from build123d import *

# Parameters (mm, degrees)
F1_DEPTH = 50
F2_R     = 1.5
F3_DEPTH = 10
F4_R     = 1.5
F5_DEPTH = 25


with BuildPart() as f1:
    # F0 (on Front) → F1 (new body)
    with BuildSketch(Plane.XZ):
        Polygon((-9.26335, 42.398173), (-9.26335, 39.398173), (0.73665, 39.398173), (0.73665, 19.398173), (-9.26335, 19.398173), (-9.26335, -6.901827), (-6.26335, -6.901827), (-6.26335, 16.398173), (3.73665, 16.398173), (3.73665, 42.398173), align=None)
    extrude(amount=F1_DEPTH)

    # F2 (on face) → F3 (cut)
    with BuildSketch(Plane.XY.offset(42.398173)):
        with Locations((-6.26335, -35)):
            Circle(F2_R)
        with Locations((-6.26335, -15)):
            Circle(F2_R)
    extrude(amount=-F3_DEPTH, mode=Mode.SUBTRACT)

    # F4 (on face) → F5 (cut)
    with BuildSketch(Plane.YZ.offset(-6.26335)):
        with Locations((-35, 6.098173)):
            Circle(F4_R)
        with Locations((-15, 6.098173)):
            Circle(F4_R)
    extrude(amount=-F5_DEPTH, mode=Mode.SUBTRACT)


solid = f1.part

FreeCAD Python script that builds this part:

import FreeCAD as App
import Part
import Sketcher
from FreeCAD import Vector

doc = App.newDocument("Part")
params = doc.addObject("Spreadsheet::Sheet", "Params")
for row, (alias, value) in enumerate([
    ("sketch1_width", "10 mm"),
    ("sketch1_width2", "3 mm"),
    ("sketch1_height", "20 mm"),
    ("sketch1_height2", "26 mm"),
    ("sketch1_height3", "26.3 mm"),
    ("pad1_length", "50 mm"),
    ("sketch2_diameter", "3 mm"),
    ("pocket1_length", "10 mm"),
    ("sketch3_diameter", "3 mm"),
    ("pocket2_length", "25 mm"),
], start=1):
    params.set(f"A{row}", alias)
    params.set(f"B{row}", "=" + value)
    params.setAlias(f"B{row}", alias)

body = doc.addObject("PartDesign::Body", "Body")

# Sketch on XZ plane
sketch1 = body.newObject("Sketcher::SketchObject", "Sketch")
sketch1.AttachmentSupport = (doc.getObject("XZ_Plane"), [""])
sketch1.MapMode = "FlatFace"
sketch1.addGeometry(Part.LineSegment(Vector(-9.3, 42.4, 0), Vector(-9.3, 39.4, 0)), False)
sketch1.addGeometry(Part.LineSegment(Vector(-9.3, 39.4, 0), Vector(0.7, 39.4, 0)), False)
sketch1.addGeometry(Part.LineSegment(Vector(0.7, 39.4, 0), Vector(0.7, 19.4, 0)), False)
sketch1.addGeometry(Part.LineSegment(Vector(0.7, 19.4, 0), Vector(-9.3, 19.4, 0)), False)
sketch1.addGeometry(Part.LineSegment(Vector(-9.3, 19.4, 0), Vector(-9.3, -6.9, 0)), False)
sketch1.addGeometry(Part.LineSegment(Vector(-9.3, -6.9, 0), Vector(-6.3, -6.9, 0)), False)
sketch1.addGeometry(Part.LineSegment(Vector(-6.3, -6.9, 0), Vector(-6.3, 16.4, 0)), False)
sketch1.addGeometry(Part.LineSegment(Vector(-6.3, 16.4, 0), Vector(3.7, 16.4, 0)), False)
sketch1.addGeometry(Part.LineSegment(Vector(3.7, 16.4, 0), Vector(3.7, 42.4, 0)), False)
sketch1.addGeometry(Part.LineSegment(Vector(3.7, 42.4, 0), Vector(-9.3, 42.4, 0)), False)
sketch1.addConstraint(Sketcher.Constraint("Coincident", 0, 2, 1, 1))
sketch1.addConstraint(Sketcher.Constraint("Coincident", 1, 2, 2, 1))
sketch1.addConstraint(Sketcher.Constraint("Coincident", 2, 2, 3, 1))
sketch1.addConstraint(Sketcher.Constraint("Coincident", 3, 2, 4, 1))
sketch1.addConstraint(Sketcher.Constraint("Coincident", 4, 2, 5, 1))
sketch1.addConstraint(Sketcher.Constraint("Coincident", 5, 2, 6, 1))
sketch1.addConstraint(Sketcher.Constraint("Coincident", 6, 2, 7, 1))
sketch1.addConstraint(Sketcher.Constraint("Coincident", 7, 2, 8, 1))
sketch1.addConstraint(Sketcher.Constraint("Coincident", 8, 2, 9, 1))
sketch1.addConstraint(Sketcher.Constraint("Coincident", 9, 2, 0, 1))
sketch1.addConstraint(Sketcher.Constraint("Vertical", 0))
sketch1.addConstraint(Sketcher.Constraint("Horizontal", 1))
sketch1.addConstraint(Sketcher.Constraint("Vertical", 2))
sketch1.addConstraint(Sketcher.Constraint("Horizontal", 3))
sketch1.addConstraint(Sketcher.Constraint("Vertical", 4))
sketch1.addConstraint(Sketcher.Constraint("Horizontal", 5))
sketch1.addConstraint(Sketcher.Constraint("Vertical", 6))
sketch1.addConstraint(Sketcher.Constraint("Horizontal", 7))
sketch1.addConstraint(Sketcher.Constraint("Vertical", 8))
sketch1.addConstraint(Sketcher.Constraint("Horizontal", 9))
sketch1.addConstraint(Sketcher.Constraint("Vertical", 0, 2, 3, 2))
sketch1.addConstraint(Sketcher.Constraint("Equal", 3, 7))
sketch1.addConstraint(Sketcher.Constraint("Equal", 5, 0))
sketch1.addConstraint(Sketcher.Constraint("DistanceX", 1, 1, 1, 2, 10.0))
sketch1.addConstraint(Sketcher.Constraint("DistanceX", 5, 1, 5, 2, 3.0))
sketch1.addConstraint(Sketcher.Constraint("DistanceY", 2, 2, 2, 1, 20.0))
sketch1.addConstraint(Sketcher.Constraint("DistanceY", 8, 1, 8, 2, 26.0))
sketch1.addConstraint(Sketcher.Constraint("DistanceY", 4, 2, 4, 1, 26.3))
sketch1.addConstraint(Sketcher.Constraint("DistanceX", 0, 2, -1, 1, 9.26335))
sketch1.addConstraint(Sketcher.Constraint("DistanceY", -1, 1, 0, 2, 39.398173))
sketch1.setExpression("Constraints[23]", "Params.sketch1_width")
sketch1.setExpression("Constraints[24]", "Params.sketch1_width2")
sketch1.setExpression("Constraints[25]", "Params.sketch1_height")
sketch1.setExpression("Constraints[26]", "Params.sketch1_height2")
sketch1.setExpression("Constraints[27]", "Params.sketch1_height3")
pad1 = body.newObject("PartDesign::Pad", "Pad")
pad1.Profile = sketch1
pad1.setExpression("Length", "Params.pad1_length")

# Sketch on XY plane
sketch2 = body.newObject("Sketcher::SketchObject", "Sketch001")
sketch2.AttachmentSupport = (doc.getObject("XY_Plane"), [""])
sketch2.MapMode = "FlatFace"
sketch2.AttachmentOffset = App.Placement(Vector(0, 0, 42.398173), App.Rotation())
sketch2.addGeometry(Part.Circle(Vector(-6.3, -35, 0), Vector(0, 0, 1), 1.5), False)
sketch2.addGeometry(Part.Circle(Vector(-6.3, -15, 0), Vector(0, 0, 1), 1.5), False)
sketch2.addConstraint(Sketcher.Constraint("Equal", 0, 1))
sketch2.addConstraint(Sketcher.Constraint("Vertical", 0, 3, 1, 3))
sketch2.addConstraint(Sketcher.Constraint("Diameter", 0, 3.0))
sketch2.addConstraint(Sketcher.Constraint("DistanceY", 0, 3, -1, 1, 35.0))
sketch2.addConstraint(Sketcher.Constraint("DistanceY", 1, 3, -1, 1, 15.0))
sketch2.addConstraint(Sketcher.Constraint("DistanceX", 0, 3, -1, 1, 6.26335))
sketch2.setExpression("Constraints[2]", "Params.sketch2_diameter")
pocket1 = body.newObject("PartDesign::Pocket", "Pocket")
pocket1.Profile = sketch2
pocket1.setExpression("Length", "Params.pocket1_length")

# Sketch on YZ plane
sketch3 = body.newObject("Sketcher::SketchObject", "Sketch002")
sketch3.AttachmentSupport = (doc.getObject("YZ_Plane"), [""])
sketch3.MapMode = "FlatFace"
sketch3.AttachmentOffset = App.Placement(Vector(0, 0, -6.26335), App.Rotation())
sketch3.addGeometry(Part.Circle(Vector(-35, 6.1, 0), Vector(0, 0, 1), 1.5), False)
sketch3.addGeometry(Part.Circle(Vector(-15, 6.1, 0), Vector(0, 0, 1), 1.5), False)
sketch3.addConstraint(Sketcher.Constraint("Equal", 0, 1))
sketch3.addConstraint(Sketcher.Constraint("Horizontal", 0, 3, 1, 3))
sketch3.addConstraint(Sketcher.Constraint("Diameter", 0, 3.0))
sketch3.addConstraint(Sketcher.Constraint("DistanceX", 0, 3, -1, 1, 35.0))
sketch3.addConstraint(Sketcher.Constraint("DistanceX", 1, 3, -1, 1, 15.0))
sketch3.addConstraint(Sketcher.Constraint("DistanceY", -1, 1, 0, 3, 6.098173))
sketch3.setExpression("Constraints[2]", "Params.sketch3_diameter")
pocket2 = body.newObject("PartDesign::Pocket", "Pocket001")
pocket2.Profile = sketch3
pocket2.setExpression("Length", "Params.pocket2_length")

doc.recompute()
